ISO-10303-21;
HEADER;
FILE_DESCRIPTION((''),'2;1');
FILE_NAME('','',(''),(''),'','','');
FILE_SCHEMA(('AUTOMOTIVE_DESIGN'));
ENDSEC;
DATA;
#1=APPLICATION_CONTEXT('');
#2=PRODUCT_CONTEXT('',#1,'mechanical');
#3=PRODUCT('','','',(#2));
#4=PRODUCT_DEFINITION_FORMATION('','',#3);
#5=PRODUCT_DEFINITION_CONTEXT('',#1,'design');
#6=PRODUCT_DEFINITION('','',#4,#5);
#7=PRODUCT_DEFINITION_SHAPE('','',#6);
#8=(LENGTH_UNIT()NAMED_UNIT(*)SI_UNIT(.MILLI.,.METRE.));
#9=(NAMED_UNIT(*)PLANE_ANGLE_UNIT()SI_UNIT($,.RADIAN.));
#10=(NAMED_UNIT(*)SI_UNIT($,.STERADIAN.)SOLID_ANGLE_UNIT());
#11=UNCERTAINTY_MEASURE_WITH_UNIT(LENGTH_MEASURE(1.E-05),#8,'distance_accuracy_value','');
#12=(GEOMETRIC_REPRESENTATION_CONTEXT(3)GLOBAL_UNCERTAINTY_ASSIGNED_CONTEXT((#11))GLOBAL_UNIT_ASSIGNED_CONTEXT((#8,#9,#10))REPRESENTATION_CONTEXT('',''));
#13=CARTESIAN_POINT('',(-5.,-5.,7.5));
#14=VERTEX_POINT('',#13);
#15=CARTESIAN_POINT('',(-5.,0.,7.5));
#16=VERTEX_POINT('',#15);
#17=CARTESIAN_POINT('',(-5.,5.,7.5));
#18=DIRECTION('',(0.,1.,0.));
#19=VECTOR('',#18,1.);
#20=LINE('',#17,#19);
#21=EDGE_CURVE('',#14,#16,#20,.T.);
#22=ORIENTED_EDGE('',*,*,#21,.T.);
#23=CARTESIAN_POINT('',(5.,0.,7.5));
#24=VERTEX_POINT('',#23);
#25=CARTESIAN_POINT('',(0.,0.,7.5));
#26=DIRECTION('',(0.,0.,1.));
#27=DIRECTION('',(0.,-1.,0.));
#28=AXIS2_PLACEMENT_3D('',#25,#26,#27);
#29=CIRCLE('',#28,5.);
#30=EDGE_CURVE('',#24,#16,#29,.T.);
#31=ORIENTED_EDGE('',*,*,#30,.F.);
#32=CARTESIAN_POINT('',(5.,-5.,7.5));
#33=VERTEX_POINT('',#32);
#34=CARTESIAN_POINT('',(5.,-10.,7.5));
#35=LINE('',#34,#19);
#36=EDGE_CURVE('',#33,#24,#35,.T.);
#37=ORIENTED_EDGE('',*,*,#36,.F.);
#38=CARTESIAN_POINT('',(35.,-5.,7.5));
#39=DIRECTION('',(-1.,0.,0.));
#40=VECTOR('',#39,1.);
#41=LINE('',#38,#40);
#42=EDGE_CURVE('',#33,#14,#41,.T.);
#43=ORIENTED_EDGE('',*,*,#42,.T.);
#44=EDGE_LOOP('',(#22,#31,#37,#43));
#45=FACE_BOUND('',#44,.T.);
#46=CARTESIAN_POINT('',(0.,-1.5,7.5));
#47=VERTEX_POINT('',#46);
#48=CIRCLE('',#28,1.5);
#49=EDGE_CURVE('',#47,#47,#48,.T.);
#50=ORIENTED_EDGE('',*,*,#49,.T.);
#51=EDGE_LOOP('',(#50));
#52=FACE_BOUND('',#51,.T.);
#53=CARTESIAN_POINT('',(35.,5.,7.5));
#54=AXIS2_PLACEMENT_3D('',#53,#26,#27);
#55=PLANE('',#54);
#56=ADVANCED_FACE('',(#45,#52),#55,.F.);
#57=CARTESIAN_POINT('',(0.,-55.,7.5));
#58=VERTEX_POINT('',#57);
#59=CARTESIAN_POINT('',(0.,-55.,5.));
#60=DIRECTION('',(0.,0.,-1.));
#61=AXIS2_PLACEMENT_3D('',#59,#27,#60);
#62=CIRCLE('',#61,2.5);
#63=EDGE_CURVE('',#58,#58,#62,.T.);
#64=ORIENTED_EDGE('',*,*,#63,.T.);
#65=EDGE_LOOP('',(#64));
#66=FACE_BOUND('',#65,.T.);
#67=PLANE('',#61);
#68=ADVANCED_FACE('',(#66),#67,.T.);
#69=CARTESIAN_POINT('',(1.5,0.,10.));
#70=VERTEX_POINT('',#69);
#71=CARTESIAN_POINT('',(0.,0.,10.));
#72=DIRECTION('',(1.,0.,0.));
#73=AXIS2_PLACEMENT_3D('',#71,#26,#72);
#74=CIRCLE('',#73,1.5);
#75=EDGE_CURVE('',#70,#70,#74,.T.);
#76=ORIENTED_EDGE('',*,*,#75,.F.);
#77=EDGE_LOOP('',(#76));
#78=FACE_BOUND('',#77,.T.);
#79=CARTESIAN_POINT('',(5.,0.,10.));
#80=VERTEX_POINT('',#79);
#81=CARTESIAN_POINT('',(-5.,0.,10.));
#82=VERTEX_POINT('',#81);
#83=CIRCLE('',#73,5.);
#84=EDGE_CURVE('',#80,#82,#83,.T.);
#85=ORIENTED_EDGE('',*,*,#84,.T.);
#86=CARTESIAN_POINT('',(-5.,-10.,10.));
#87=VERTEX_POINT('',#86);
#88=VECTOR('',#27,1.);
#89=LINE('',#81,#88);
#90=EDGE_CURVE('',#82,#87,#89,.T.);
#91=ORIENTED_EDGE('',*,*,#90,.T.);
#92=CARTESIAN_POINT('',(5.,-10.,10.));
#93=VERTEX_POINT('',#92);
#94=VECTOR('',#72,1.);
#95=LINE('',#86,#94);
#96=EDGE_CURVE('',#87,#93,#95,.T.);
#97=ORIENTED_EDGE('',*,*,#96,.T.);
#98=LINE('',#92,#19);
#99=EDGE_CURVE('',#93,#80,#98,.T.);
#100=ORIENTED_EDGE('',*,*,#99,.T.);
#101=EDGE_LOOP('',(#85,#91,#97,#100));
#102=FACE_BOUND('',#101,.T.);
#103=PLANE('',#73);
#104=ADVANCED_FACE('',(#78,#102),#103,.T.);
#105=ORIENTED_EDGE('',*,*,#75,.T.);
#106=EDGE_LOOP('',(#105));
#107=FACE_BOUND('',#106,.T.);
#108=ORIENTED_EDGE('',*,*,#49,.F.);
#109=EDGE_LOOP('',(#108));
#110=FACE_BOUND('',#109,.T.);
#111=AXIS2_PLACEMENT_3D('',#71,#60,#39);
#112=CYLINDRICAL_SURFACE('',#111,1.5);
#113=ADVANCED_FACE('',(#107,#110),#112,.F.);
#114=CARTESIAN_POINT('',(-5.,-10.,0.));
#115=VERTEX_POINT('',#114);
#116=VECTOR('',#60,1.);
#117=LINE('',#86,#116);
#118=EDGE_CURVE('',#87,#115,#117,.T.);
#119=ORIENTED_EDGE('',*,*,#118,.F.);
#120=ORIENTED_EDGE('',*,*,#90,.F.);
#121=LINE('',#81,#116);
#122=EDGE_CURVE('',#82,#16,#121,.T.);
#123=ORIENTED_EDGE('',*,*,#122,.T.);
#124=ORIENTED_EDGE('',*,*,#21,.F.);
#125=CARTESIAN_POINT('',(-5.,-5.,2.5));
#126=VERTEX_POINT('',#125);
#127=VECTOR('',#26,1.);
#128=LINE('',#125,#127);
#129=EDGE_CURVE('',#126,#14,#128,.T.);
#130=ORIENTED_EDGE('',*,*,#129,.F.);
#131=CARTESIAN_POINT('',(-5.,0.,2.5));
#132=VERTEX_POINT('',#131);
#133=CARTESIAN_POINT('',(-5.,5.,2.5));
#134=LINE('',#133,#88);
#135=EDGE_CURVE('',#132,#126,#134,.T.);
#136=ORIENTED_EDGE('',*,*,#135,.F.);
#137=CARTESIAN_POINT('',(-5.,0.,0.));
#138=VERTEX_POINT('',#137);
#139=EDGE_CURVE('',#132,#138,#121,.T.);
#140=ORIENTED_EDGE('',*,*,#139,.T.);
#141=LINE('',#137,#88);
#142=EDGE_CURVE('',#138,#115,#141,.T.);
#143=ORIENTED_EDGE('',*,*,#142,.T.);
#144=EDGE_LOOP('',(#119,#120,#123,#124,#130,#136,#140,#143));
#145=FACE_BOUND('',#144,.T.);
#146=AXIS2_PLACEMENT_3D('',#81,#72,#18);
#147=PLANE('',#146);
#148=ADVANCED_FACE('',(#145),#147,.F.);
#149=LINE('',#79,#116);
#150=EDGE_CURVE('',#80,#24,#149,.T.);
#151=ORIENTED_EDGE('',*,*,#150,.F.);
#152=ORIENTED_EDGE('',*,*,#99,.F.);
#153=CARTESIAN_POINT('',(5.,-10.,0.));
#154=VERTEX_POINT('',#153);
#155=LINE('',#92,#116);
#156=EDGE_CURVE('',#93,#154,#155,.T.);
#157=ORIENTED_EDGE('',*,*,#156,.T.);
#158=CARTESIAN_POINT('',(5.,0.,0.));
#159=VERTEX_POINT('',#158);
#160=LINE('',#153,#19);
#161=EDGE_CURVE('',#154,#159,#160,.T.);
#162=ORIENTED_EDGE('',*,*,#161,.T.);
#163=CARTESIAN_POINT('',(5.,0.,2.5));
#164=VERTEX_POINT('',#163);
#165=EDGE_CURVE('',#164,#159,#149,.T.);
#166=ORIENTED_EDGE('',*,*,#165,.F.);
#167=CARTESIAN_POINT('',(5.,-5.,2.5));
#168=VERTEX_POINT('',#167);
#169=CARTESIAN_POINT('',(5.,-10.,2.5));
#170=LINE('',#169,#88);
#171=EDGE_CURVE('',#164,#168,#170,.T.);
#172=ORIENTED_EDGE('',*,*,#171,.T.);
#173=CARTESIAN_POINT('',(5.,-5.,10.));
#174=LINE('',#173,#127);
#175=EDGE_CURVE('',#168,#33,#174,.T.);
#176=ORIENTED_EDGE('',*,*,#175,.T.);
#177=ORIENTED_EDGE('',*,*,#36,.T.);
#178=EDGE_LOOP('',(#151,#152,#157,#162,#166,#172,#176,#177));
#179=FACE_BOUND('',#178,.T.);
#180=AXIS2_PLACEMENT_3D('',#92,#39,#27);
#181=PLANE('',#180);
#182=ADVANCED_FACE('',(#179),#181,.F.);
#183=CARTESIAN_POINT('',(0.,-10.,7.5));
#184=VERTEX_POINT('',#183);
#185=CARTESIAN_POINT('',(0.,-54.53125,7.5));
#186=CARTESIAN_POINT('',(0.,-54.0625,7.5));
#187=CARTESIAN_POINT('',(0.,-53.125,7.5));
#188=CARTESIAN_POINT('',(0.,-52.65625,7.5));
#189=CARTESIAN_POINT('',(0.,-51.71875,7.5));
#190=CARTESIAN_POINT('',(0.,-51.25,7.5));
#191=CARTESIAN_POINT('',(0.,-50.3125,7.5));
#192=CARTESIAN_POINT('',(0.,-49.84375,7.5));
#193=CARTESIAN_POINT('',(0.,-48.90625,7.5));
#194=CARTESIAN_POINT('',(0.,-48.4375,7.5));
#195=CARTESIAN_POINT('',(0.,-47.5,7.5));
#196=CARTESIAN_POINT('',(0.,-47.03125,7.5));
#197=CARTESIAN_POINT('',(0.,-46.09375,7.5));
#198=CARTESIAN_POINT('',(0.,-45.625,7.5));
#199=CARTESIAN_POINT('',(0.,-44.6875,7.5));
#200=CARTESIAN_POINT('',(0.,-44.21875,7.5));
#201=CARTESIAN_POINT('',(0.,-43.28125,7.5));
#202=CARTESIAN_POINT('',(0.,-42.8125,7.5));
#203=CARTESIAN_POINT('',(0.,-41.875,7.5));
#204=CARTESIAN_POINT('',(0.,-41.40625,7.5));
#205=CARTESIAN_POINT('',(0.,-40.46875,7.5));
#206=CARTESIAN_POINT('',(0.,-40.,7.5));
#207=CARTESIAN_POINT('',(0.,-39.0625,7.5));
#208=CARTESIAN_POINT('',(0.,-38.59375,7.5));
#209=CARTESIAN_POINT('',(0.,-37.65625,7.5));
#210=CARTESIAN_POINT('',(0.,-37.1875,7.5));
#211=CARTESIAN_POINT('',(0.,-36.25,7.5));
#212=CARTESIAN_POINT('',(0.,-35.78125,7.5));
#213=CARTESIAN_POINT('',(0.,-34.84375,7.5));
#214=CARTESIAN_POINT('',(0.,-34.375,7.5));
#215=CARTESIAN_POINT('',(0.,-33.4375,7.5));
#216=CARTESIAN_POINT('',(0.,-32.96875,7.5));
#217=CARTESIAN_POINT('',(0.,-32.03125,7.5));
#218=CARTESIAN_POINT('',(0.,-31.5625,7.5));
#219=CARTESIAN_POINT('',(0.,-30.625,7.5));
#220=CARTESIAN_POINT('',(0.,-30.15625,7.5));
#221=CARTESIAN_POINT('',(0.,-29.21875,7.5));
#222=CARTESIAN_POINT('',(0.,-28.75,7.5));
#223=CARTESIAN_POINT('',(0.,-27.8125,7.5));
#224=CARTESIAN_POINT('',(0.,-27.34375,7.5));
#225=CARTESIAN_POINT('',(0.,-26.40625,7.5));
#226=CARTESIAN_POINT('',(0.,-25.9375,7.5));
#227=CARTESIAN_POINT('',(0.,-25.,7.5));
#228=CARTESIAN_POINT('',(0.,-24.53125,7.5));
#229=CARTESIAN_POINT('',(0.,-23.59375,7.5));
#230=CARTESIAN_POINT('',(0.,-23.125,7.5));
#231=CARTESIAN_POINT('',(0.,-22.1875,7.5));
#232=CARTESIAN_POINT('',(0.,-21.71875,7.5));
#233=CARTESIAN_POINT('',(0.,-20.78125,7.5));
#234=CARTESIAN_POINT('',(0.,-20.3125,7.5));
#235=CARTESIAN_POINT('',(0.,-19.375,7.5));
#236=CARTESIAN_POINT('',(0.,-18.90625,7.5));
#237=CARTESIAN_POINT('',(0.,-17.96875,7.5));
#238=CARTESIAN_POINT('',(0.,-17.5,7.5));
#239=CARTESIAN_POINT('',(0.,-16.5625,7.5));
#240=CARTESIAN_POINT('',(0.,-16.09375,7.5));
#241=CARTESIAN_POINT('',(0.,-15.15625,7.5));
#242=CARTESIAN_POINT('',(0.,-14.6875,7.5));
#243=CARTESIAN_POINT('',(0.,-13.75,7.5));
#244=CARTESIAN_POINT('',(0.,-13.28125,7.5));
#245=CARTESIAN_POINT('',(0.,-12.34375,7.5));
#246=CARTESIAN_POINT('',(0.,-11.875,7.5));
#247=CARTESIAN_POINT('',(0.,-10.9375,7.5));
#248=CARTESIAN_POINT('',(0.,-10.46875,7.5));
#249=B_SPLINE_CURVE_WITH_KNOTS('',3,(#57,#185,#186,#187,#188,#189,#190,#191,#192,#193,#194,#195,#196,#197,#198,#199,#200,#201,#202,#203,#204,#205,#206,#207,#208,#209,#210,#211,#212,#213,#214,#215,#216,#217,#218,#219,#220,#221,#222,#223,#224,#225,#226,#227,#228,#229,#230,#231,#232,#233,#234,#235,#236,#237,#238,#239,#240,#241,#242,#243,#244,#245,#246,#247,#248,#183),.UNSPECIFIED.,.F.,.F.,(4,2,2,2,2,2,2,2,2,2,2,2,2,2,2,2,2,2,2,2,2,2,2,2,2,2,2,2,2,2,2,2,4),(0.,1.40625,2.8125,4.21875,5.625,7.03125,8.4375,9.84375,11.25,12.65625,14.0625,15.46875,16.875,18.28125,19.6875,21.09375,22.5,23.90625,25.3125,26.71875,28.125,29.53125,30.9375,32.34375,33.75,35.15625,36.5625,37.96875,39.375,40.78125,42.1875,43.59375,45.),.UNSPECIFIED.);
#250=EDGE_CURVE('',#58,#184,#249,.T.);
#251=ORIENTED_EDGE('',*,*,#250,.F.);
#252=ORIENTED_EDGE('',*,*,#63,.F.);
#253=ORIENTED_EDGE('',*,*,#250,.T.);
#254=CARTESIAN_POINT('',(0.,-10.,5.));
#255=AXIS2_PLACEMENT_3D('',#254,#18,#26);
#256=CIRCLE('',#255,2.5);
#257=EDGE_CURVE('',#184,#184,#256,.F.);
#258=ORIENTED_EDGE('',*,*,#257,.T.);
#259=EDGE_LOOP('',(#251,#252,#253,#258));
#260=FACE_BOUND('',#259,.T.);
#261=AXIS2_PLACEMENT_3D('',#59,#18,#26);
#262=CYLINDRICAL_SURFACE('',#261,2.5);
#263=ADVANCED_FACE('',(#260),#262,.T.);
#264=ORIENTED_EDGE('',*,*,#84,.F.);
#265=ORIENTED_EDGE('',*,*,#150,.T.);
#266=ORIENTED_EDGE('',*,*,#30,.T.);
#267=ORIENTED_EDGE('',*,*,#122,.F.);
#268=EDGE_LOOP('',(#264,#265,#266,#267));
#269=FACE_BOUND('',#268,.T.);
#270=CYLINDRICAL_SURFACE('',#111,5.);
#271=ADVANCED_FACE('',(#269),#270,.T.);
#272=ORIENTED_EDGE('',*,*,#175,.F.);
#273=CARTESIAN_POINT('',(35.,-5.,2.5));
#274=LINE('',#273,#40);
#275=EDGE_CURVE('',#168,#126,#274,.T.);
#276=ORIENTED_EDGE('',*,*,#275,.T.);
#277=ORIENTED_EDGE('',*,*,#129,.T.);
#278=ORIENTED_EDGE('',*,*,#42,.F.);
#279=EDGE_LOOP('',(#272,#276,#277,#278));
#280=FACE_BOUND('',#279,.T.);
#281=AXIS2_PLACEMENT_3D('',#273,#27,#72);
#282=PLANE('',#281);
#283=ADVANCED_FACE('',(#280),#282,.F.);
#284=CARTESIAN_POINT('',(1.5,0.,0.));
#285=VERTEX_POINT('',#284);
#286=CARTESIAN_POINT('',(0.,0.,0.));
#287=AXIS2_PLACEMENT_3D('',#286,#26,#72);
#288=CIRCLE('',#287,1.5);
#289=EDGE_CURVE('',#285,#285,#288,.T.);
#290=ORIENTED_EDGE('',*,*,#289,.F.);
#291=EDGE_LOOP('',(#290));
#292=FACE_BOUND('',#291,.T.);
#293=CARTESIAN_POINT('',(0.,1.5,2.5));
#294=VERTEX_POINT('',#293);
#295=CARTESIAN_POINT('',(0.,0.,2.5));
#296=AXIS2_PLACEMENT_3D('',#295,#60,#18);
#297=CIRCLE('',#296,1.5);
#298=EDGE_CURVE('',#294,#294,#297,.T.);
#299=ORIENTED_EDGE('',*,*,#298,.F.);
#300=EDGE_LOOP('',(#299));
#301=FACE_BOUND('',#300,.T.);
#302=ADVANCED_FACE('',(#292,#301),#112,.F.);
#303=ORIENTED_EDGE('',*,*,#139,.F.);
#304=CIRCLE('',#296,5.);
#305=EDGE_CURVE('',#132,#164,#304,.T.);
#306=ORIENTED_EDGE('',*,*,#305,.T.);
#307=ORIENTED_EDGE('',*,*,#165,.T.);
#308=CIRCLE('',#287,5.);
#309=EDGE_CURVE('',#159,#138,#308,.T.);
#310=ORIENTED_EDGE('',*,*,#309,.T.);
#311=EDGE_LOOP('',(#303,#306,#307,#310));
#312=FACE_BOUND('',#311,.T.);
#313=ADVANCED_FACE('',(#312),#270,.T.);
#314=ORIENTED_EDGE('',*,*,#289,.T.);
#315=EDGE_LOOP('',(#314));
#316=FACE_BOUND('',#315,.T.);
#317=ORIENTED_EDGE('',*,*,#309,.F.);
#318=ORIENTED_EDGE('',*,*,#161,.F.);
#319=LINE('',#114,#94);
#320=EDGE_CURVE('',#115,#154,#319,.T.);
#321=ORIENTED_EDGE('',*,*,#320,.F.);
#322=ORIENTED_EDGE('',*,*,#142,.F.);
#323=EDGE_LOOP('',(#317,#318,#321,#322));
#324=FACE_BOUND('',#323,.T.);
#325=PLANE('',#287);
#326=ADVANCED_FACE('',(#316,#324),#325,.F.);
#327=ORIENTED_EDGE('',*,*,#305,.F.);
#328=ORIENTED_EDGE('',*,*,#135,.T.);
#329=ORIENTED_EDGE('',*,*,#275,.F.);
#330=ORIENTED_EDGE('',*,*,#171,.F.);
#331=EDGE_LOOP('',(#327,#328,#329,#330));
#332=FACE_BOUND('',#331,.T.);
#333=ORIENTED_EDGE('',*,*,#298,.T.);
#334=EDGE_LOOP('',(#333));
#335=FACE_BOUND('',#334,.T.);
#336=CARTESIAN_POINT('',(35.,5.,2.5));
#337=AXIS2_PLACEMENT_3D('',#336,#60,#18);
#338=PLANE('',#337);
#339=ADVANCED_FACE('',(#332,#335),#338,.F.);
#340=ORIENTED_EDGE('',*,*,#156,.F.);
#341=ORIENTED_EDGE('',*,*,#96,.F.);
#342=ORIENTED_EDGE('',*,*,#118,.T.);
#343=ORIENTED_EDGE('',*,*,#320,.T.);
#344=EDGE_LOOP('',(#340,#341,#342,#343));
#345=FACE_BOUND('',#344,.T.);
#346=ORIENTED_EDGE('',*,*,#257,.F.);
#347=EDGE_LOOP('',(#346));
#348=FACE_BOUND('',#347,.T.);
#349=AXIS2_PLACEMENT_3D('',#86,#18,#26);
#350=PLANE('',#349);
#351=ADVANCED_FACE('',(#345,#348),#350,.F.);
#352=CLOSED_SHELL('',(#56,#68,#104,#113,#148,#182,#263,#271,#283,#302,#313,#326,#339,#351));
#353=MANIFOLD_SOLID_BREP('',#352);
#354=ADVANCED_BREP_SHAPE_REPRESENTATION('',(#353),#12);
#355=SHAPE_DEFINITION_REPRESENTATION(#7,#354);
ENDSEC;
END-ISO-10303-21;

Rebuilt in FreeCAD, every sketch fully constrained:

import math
import FreeCAD as App
import Part
import Sketcher

V = App.Vector
Q = App.Units.Quantity

doc = App.newDocument("Part")
body = doc.addObject("PartDesign::Body", "Body")

# Sketch on XY plane
sketch1 = body.newObject("Sketcher::SketchObject", "Sketch")
sketch1.AttachmentSupport = (doc.getObject("XY_Plane"), [""])
sketch1.MapMode = "FlatFace"
sketch1.addGeometry(Part.LineSegment(V(-5, 0, 0), V(-5, -10, 0)), False)
sketch1.addGeometry(Part.LineSegment(V(-5, -10, 0), V(5, -10, 0)), False)
sketch1.addGeometry(Part.LineSegment(V(5, -10, 0), V(5, 0, 0)), False)
sketch1.addGeometry(Part.ArcOfCircle(Part.Circle(V(0, 0, 0), V(0, 0, 1), 5), math.radians(0), math.radians(180)), False)
sketch1.addGeometry(Part.Circle(V(0, 0, 0), V(0, 0, 1), 1.5), False)
sketch1.addConstraint(Sketcher.Constraint("Coincident", 0, 2, 1, 1))
sketch1.addConstraint(Sketcher.Constraint("Coincident", 1, 2, 2, 1))
sketch1.addConstraint(Sketcher.Constraint("Tangent", 2, 2, 3, 1))
sketch1.addConstraint(Sketcher.Constraint("Tangent", 3, 2, 0, 1))
sketch1.addConstraint(Sketcher.Constraint("Vertical", 0))
sketch1.addConstraint(Sketcher.Constraint("Horizontal", 1))
sketch1.addConstraint(Sketcher.Constraint("Vertical", 2))
sketch1.addConstraint(Sketcher.Constraint("Coincident", 3, 3, -1, 1))
sketch1.addConstraint(Sketcher.Constraint("Coincident", 4, 3, -1, 1))
sketch1.addConstraint(Sketcher.Constraint("Equal", 1, 0))
sketch1.addConstraint(Sketcher.Constraint("Diameter", 4, Q("3 mm")))
sketch1.addConstraint(Sketcher.Constraint("Radius", 3, Q("5 mm")))
pad1 = body.newObject("PartDesign::Pad", "Pad")
pad1.Profile = sketch1
pad1.Length = 10

# Sketch on XZ plane
sketch2 = body.newObject("Sketcher::SketchObject", "Sketch001")
sketch2.AttachmentSupport = (doc.getObject("XZ_Plane"), [""])
sketch2.MapMode = "FlatFace"
sketch2.AttachmentOffset = App.Placement(V(0, 0, 10), App.Rotation())
sketch2.addGeometry(Part.Circle(V(0, 5, 0), V(0, 0, 1), 2.5), False)
sketch2.addConstraint(Sketcher.Constraint("PointOnObject", 0, 3, -2))
sketch2.addConstraint(Sketcher.Constraint("Diameter", 0, Q("5 mm")))
sketch2.addConstraint(Sketcher.Constraint("DistanceY", -1, 1, 0, 3, Q("5 mm")))
pad2 = body.newObject("PartDesign::Pad", "Pad001")
pad2.Profile = sketch2
pad2.Length = 45

# Sketch on YZ plane
sketch3 = body.newObject("Sketcher::SketchObject", "Sketch002")
sketch3.AttachmentSupport = (doc.getObject("YZ_Plane"), [""])
sketch3.MapMode = "FlatFace"
sketch3.AttachmentOffset = App.Placement(V(0, 0, -5), App.Rotation())
sketch3.addGeometry(Part.LineSegment(V(5, 2, 0), V(-5, 2, 0)), False)
sketch3.addGeometry(Part.LineSegment(V(-5, 2, 0), V(-5, 8, 0)), False)
sketch3.addGeometry(Part.LineSegment(V(-5, 8, 0), V(5, 8, 0)), False)
sketch3.addGeometry(Part.LineSegment(V(5, 8, 0), V(5, 2, 0)), False)
sketch3.addConstraint(Sketcher.Constraint("Coincident", 0, 2, 1, 1))
sketch3.addConstraint(Sketcher.Constraint("Coincident", 1, 2, 2, 1))
sketch3.addConstraint(Sketcher.Constraint("Coincident", 2, 2, 3, 1))
sketch3.addConstraint(Sketcher.Constraint("Coincident", 3, 2, 0, 1))
sketch3.addConstraint(Sketcher.Constraint("Horizontal", 0))
sketch3.addConstraint(Sketcher.Constraint("Vertical", 1))
sketch3.addConstraint(Sketcher.Constraint("Horizontal", 2))
sketch3.addConstraint(Sketcher.Constraint("Vertical", 3))
sketch3.addConstraint(Sketcher.Constraint("DistanceX", 0, 2, 0, 1, Q("10 mm")))
sketch3.addConstraint(Sketcher.Constraint("DistanceY", 1, 1, 1, 2, Q("5 mm")))
sketch3.addConstraint(Sketcher.Constraint("DistanceX", 0, 2, -1, 1, Q("5 mm")))
sketch3.addConstraint(Sketcher.Constraint("DistanceY", -1, 1, 0, 2, Q("2.5 mm")))
pocket1 = body.newObject("PartDesign::Pocket", "Pocket")
pocket1.Profile = sketch3
pocket1.Length = 40
pocket1.Reversed = True

doc.recompute()
